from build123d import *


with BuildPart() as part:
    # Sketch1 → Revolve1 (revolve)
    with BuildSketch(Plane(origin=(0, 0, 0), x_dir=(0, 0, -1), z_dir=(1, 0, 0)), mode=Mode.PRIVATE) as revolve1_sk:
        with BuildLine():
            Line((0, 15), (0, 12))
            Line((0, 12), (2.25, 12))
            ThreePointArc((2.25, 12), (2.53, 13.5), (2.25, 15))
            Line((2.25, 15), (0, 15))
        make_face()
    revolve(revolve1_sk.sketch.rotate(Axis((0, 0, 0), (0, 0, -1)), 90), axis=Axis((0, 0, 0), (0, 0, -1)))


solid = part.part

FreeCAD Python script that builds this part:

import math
import FreeCAD as App
import Part
import Sketcher

V = App.Vector
Q = App.Units.Quantity

doc = App.newDocument("Part")
body = doc.addObject("PartDesign::Body", "Body")

# Sketch on YZ plane
sketch1 = body.newObject("Sketcher::SketchObject", "Sketch")
sketch1.AttachmentSupport = (doc.getObject("YZ_Plane"), [""])
sketch1.MapMode = "FlatFace"
sketch1.addGeometry([
    Part.LineSegment(V(15, 0, 0), V(12, 0, 0)),
    Part.LineSegment(V(12, 0, 0), V(12, -2.25, 0)),
    Part.ArcOfCircle(Part.Circle(V(13.5, 1.627857, 0), V(0, 0, 1), 4.157857), math.radians(-111.147047), math.radians(-68.852953)),
    Part.LineSegment(V(15, -2.25, 0), V(15, 0, 0)),
], False)
sketch1.addConstraint([
    Sketcher.Constraint("Coincident", 0, 2, 1, 1),
    Sketcher.Constraint("Coincident", 1, 2, 2, 1),
    Sketcher.Constraint("Coincident", 2, 2, 3, 1),
    Sketcher.Constraint("Coincident", 3, 2, 0, 1),
    Sketcher.Constraint("Horizontal", 0),
    Sketcher.Constraint("Vertical", 1),
    Sketcher.Constraint("Vertical", 3),
    Sketcher.Constraint("PointOnObject", 0, 2, -1),
    Sketcher.Constraint("Horizontal", 1, 2, 2, 2),
    Sketcher.Constraint("DistanceX", 0, 2, 0, 1, Q("3 mm")),
    Sketcher.Constraint("DistanceX", -1, 1, 0, 2, Q("12 mm")),
    Sketcher.Constraint("DistanceY", 1, 2, 1, 1, Q("2.25 mm")),
    Sketcher.Constraint("Radius", 2, Q("4.157857 mm")),
])
revolution = body.newObject("PartDesign::Revolution", "Revolution")
revolution.Profile = sketch1
revolution.ReferenceAxis = (sketch1, ["V_Axis"])
revolution.Angle = 360

doc.recompute()
